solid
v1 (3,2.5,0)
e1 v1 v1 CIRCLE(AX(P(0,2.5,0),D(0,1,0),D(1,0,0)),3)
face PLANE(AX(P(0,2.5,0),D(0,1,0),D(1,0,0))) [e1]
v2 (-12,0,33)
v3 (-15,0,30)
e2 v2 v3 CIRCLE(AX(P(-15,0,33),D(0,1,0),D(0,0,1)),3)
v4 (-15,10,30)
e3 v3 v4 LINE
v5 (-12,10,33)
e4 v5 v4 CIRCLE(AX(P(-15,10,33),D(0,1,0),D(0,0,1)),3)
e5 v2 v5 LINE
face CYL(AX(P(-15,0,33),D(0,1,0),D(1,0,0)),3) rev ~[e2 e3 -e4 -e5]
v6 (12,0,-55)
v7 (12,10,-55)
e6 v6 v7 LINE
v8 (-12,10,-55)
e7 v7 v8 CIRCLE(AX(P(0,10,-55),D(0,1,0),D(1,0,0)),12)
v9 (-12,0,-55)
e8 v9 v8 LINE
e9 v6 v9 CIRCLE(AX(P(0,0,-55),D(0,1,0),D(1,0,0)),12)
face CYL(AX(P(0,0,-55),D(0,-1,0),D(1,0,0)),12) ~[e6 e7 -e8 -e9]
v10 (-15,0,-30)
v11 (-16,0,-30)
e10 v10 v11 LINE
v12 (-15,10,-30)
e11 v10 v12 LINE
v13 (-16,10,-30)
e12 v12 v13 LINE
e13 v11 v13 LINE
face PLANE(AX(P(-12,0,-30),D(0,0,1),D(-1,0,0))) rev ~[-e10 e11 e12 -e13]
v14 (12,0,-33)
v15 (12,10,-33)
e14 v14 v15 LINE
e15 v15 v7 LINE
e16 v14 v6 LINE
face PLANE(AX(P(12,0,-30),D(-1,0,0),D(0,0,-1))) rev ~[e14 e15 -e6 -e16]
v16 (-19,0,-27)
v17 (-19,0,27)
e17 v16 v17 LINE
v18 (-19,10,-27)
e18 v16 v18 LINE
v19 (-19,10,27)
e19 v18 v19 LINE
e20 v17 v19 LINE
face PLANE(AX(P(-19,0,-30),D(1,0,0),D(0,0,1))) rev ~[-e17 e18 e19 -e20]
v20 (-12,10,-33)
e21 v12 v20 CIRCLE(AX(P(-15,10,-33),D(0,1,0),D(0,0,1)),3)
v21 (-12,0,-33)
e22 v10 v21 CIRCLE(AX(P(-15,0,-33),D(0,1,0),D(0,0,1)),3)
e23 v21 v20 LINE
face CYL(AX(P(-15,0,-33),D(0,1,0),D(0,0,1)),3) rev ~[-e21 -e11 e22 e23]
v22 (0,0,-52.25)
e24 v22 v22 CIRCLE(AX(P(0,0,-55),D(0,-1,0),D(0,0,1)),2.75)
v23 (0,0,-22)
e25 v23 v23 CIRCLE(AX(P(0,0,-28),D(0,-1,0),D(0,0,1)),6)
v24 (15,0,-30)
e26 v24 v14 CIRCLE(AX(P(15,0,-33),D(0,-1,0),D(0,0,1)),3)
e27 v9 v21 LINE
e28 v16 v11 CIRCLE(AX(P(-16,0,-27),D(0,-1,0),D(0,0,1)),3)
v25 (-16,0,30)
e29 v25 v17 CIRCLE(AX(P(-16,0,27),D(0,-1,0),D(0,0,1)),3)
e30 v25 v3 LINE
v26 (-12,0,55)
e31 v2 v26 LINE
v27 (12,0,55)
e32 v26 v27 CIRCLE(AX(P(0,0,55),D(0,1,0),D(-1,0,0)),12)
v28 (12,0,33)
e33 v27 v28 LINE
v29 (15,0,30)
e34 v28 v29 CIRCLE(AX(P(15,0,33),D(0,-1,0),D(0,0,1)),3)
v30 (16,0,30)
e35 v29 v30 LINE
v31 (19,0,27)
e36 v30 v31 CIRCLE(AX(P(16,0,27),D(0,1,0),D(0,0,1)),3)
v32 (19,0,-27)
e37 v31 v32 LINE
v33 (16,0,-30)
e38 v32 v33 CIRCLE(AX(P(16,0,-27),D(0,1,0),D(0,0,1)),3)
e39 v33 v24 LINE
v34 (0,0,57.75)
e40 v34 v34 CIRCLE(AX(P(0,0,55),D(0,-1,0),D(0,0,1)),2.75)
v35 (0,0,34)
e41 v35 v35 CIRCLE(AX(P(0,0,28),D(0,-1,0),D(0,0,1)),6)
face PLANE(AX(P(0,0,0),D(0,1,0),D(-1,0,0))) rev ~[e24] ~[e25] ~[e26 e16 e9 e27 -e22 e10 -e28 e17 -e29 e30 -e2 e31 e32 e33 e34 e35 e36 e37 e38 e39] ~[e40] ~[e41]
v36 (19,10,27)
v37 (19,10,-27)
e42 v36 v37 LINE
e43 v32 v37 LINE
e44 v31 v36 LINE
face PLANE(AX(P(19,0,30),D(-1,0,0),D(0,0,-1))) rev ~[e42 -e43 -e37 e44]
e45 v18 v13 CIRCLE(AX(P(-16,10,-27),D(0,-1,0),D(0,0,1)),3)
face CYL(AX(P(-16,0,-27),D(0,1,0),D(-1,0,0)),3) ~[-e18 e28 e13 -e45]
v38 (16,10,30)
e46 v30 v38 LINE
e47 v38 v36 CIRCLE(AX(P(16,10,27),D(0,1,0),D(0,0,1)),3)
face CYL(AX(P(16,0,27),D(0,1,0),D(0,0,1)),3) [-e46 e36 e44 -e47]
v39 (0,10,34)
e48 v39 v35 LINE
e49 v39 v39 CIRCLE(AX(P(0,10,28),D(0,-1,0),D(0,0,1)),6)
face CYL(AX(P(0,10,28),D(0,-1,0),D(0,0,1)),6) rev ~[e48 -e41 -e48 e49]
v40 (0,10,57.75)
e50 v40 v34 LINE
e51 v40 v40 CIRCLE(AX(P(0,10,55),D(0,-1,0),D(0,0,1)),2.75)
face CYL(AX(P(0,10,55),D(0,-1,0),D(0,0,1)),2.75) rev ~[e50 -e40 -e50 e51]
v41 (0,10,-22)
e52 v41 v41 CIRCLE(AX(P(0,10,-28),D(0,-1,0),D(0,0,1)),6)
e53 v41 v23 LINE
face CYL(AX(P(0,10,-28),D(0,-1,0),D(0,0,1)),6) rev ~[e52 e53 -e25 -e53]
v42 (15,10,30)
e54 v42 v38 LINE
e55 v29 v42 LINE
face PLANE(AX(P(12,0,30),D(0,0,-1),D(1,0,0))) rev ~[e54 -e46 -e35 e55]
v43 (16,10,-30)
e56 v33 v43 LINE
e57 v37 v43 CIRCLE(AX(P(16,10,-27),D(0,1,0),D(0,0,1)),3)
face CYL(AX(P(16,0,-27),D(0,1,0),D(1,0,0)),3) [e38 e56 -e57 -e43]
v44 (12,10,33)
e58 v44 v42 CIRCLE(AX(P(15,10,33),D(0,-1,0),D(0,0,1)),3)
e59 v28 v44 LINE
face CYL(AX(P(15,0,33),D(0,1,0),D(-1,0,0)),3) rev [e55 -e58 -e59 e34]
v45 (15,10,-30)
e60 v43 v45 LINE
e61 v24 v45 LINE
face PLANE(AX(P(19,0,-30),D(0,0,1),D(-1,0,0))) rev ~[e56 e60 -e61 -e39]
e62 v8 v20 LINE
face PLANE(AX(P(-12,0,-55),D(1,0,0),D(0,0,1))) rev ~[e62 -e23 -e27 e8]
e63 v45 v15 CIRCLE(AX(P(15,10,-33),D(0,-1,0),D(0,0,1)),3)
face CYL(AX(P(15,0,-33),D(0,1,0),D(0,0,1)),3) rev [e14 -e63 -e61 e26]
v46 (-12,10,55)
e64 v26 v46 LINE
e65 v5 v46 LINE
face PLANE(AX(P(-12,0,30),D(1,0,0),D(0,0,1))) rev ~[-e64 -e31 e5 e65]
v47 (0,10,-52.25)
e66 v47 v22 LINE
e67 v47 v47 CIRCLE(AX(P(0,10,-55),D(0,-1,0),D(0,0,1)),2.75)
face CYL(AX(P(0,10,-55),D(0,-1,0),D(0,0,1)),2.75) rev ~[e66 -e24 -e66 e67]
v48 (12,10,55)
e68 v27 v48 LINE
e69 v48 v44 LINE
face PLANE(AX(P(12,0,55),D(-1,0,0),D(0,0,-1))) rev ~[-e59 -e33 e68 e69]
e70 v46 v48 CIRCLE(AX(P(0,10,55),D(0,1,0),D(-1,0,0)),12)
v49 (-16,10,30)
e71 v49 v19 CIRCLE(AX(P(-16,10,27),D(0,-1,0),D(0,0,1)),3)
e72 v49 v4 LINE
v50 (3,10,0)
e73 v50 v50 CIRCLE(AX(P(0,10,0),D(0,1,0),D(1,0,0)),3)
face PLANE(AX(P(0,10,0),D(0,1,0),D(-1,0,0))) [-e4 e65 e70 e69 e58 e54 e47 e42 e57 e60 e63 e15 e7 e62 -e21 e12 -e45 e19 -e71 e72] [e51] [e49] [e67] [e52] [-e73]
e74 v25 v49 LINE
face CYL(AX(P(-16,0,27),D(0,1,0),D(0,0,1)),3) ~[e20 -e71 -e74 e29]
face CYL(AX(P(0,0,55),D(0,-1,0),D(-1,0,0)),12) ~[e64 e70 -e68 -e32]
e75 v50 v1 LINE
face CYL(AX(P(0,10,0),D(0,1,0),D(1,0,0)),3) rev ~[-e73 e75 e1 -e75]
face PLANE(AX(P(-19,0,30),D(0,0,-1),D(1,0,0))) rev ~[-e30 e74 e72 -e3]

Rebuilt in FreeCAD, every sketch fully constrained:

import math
import FreeCAD as App
import Part
import Sketcher
Q = App.Units.Quantity


def edges_at(feature, points):
    """Names of the edges that pass closest to the given points."""
    edges = feature.Shape.Edges
    near = lambda p: min(range(len(edges)), key=lambda i: edges[i].distToShape(Part.Vertex(*p))[0])
    return sorted({f"Edge{near(p) + 1}" for p in points})

doc = App.newDocument("Part")
params = doc.addObject("Spreadsheet::Sheet", "Params")
for row, (alias, value) in enumerate([
    ("sketch1_radius", "12 mm"),
    ("sketch1_height", "60 mm"),
    ("pad1_length", "10 mm"),
    ("sketch2_diameter", "12 mm"),
    ("hole_diameter", "12 mm"),
    ("fillet_radius", "3 mm"),
    ("sketch3_diameter", "5.5 mm"),
    ("hole2_diameter", "5.5 mm"),
    ("sketch4_diameter", "6 mm"),
    ("pocket1_length", "7.5 mm"),
], start=1):
    params.set(f"A{row}", alias)
    params.set(f"B{row}", "=" + value)
    params.setAlias(f"B{row}", alias)

body = doc.addObject("PartDesign::Body", "Body")

sketch1 = body.newObject("Sketcher::SketchObject", "Sketch")
sketch1.AttachmentSupport = (doc.getObject("XZ_Plane"), [""])
sketch1.MapMode = "FlatFace"
sketch1.addGeometry([
    Part.ArcOfCircle(Part.Circle(App.Vector(0, 55, 0), App.Vector(0, 0, 1), 12), math.radians(0), math.radians(180)),
    Part.LineSegment(App.Vector(12, 55, 0), App.Vector(12, 30, 0)),
    Part.LineSegment(App.Vector(12, 30, 0), App.Vector(19, 30, 0)),
    Part.LineSegment(App.Vector(19, 30, 0), App.Vector(19, -30, 0)),
    Part.LineSegment(App.Vector(19, -30, 0), App.Vector(12, -30, 0)),
    Part.LineSegment(App.Vector(12, -30, 0), App.Vector(12, -55, 0)),
    Part.ArcOfCircle(Part.Circle(App.Vector(0, -55, 0), App.Vector(0, 0, 1), 12), math.radians(180), math.radians(360)),
    Part.LineSegment(App.Vector(-12, -55, 0), App.Vector(-12, -30, 0)),
    Part.LineSegment(App.Vector(-12, -30, 0), App.Vector(-19, -30, 0)),
    Part.LineSegment(App.Vector(-19, -30, 0), App.Vector(-19, 30, 0)),
    Part.LineSegment(App.Vector(-19, 30, 0), App.Vector(-12, 30, 0)),
    Part.LineSegment(App.Vector(-12, 30, 0), App.Vector(-12, 55, 0)),
], False)
sketch1.addConstraint([
    Sketcher.Constraint("Tangent", 0, 1, 1, 1),
    Sketcher.Constraint("Coincident", 1, 2, 2, 1),
    Sketcher.Constraint("Coincident", 2, 2, 3, 1),
    Sketcher.Constraint("Coincident", 3, 2, 4, 1),
    Sketcher.Constraint("Coincident", 4, 2, 5, 1),
    Sketcher.Constraint("Tangent", 5, 2, 6, 2),
    Sketcher.Constraint("Tangent", 6, 1, 7, 1),
    Sketcher.Constraint("Coincident", 7, 2, 8, 1),
    Sketcher.Constraint("Coincident", 8, 2, 9, 1),
    Sketcher.Constraint("Coincident", 9, 2, 10, 1),
    Sketcher.Constraint("Coincident", 10, 2, 11, 1),
    Sketcher.Constraint("Tangent", 11, 2, 0, 2),
    Sketcher.Constraint("Vertical", 1),
    Sketcher.Constraint("Horizontal", 2),
    Sketcher.Constraint("Vertical", 3),
    Sketcher.Constraint("Horizontal", 4),
    Sketcher.Constraint("Vertical", 5),
    Sketcher.Constraint("Vertical", 7),
    Sketcher.Constraint("Horizontal", 8),
    Sketcher.Constraint("Vertical", 9),
    Sketcher.Constraint("Horizontal", 10),
    Sketcher.Constraint("Vertical", 11),
    Sketcher.Constraint("Equal", 0, 6),
    Sketcher.Constraint("Symmetric", 0, 3, 6, 3, -1, 1),
    Sketcher.Constraint("Symmetric", 2, 2, 8, 2, -1, 1),
    Sketcher.Constraint("Symmetric", 4, 2, 7, 2, -2),
    Sketcher.Constraint("Horizontal", 2, 2, 9, 2),
    Sketcher.Constraint("Radius", 0, Q("12 mm")),
    Sketcher.Constraint("DistanceY", 3, 2, 3, 1, Q("60 mm")),
    Sketcher.Constraint("DistanceY", 6, 3, 0, 3, Q("110 mm")),
    Sketcher.Constraint("DistanceX", 8, 2, 3, 2, Q("38 mm")),
])
sketch1.setExpression("Constraints[27]", "Params.sketch1_radius")
sketch1.setExpression("Constraints[28]", "Params.sketch1_height")
pad1 = body.newObject("PartDesign::Pad", "Pad")
pad1.Profile = sketch1
pad1.setExpression("Length", "Params.pad1_length")
pad1.Reversed = True

sketch2 = body.newObject("Sketcher::SketchObject", "Sketch001")
sketch2.AttachmentSupport = (doc.getObject("XZ_Plane"), [""])
sketch2.MapMode = "FlatFace"
sketch2.AttachmentOffset = App.Placement(App.Vector(0, 0, -10), App.Rotation())
sketch2.addGeometry([
    Part.Circle(App.Vector(0, 28, 0), App.Vector(0, 0, 1), 6),
    Part.Circle(App.Vector(0, -28, 0), App.Vector(0, 0, 1), 6),
], False)
sketch2.addConstraint([
    Sketcher.Constraint("Equal", 0, 1),
    Sketcher.Constraint("Symmetric", 0, 3, 1, 3, -1, 1),
    Sketcher.Constraint("PointOnObject", 0, 3, -2),
    Sketcher.Constraint("Diameter", 0, Q("12 mm")),
    Sketcher.Constraint("DistanceY", -1, 1, 0, 3, Q("28 mm")),
])
sketch2.setExpression("Constraints[3]", "Params.sketch2_diameter")
doc.recompute()
hole = body.newObject("PartDesign::Hole", "Hole")
hole.Profile = sketch2
hole.ThreadType = "None"
hole.setExpression("Diameter", "Params.hole_diameter")
hole.DepthType = "ThroughAll"
hole.Reversed = True
doc.recompute()

fillet = body.newObject("PartDesign::Fillet", "Fillet")
fillet.Base = (hole, edges_at(hole, [
    (19, 5, 30),
    (19, 5, -30),
    (12, 5, 30),
    (-19, 5, 30),
    (-12, 5, 30),
    (-19, 5, -30),
    (-12, 5, -30),
    (12, 5, -30),
]))
fillet.setExpression("Radius", "Params.fillet_radius")

sketch3 = body.newObject("Sketcher::SketchObject", "Sketch002")
sketch3.AttachmentSupport = (doc.getObject("XZ_Plane"), [""])
sketch3.MapMode = "FlatFace"
sketch3.AttachmentOffset = App.Placement(App.Vector(0, 0, -10), App.Rotation())
sketch3.addGeometry([
    Part.Circle(App.Vector(0, 55, 0), App.Vector(0, 0, 1), 2.8),
    Part.Circle(App.Vector(0, -55, 0), App.Vector(0, 0, 1), 2.8),
], False)
sketch3.addConstraint([
    Sketcher.Constraint("Equal", 0, 1),
    Sketcher.Constraint("Symmetric", 0, 3, 1, 3, -1, 1),
    Sketcher.Constraint("PointOnObject", 0, 3, -2),
    Sketcher.Constraint("Diameter", 0, Q("5.5 mm")),
    Sketcher.Constraint("DistanceY", -1, 1, 0, 3, Q("55 mm")),
])
sketch3.setExpression("Constraints[3]", "Params.sketch3_diameter")
doc.recompute()
hole2 = body.newObject("PartDesign::Hole", "Hole001")
hole2.Profile = sketch3
hole2.ThreadType = "None"
hole2.setExpression("Diameter", "Params.hole2_diameter")
hole2.DepthType = "ThroughAll"
hole2.Reversed = True

sketch4 = body.newObject("Sketcher::SketchObject", "Sketch003")
sketch4.AttachmentSupport = (doc.getObject("XZ_Plane"), [""])
sketch4.MapMode = "FlatFace"
sketch4.AttachmentOffset = App.Placement(App.Vector(0, 0, -10), App.Rotation())
sketch4.addGeometry(Part.Circle(App.Vector(0, 0, 0), App.Vector(0, 0, 1), 3), False)
sketch4.addConstraint([
    Sketcher.Constraint("Coincident", 0, 3, -1, 1),
    Sketcher.Constraint("Diameter", 0, Q("6 mm")),
])
sketch4.setExpression("Constraints[1]", "Params.sketch4_diameter")
pocket1 = body.newObject("PartDesign::Pocket", "Pocket")
pocket1.Profile = sketch4
pocket1.setExpression("Length", "Params.pocket1_length")
pocket1.Reversed = True

doc.recompute()
